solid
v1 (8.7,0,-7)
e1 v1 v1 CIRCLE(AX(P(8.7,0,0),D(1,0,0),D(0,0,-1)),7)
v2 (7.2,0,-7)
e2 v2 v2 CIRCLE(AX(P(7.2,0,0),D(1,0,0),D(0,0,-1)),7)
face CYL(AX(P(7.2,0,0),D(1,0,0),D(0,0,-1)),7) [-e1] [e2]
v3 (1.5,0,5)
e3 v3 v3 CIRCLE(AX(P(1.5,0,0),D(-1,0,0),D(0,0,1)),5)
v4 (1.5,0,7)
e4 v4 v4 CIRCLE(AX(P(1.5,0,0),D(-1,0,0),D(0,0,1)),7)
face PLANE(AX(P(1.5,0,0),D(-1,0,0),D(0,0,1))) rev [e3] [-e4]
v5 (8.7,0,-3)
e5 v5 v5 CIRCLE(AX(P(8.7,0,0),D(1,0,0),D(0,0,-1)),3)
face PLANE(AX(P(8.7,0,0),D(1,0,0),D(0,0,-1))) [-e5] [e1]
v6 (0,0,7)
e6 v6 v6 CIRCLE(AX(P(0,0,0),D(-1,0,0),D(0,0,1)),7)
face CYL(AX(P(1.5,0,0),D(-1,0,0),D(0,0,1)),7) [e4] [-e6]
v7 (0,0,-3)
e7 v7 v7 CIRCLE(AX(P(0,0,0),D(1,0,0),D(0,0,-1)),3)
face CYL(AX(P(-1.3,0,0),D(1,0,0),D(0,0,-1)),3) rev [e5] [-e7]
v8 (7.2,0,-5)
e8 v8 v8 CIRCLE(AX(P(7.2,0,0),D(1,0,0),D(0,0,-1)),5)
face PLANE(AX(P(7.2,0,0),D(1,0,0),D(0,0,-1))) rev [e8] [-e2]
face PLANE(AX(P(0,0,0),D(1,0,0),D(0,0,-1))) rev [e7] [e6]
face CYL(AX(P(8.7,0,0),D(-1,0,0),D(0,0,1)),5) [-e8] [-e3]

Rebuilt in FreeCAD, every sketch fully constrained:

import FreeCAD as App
import Part
import Sketcher
Q = App.Units.Quantity

doc = App.newDocument("Part")
body = doc.addObject("PartDesign::Body", "Body")

# Sketch on YZ plane
sketch1 = body.newObject("Sketcher::SketchObject", "Sketch")
sketch1.AttachmentSupport = (doc.getObject("YZ_Plane"), [""])
sketch1.MapMode = "FlatFace"
sketch1.addGeometry(Part.Circle(App.Vector(0, 0, 0), App.Vector(0, 0, 1), 5), False)
sketch1.addConstraint(Sketcher.Constraint("Coincident", 0, 3, -1, 1))
sketch1.addConstraint(Sketcher.Constraint("Diameter", 0, Q("10 mm")))
pad1 = body.newObject("PartDesign::Pad", "Pad")
pad1.Profile = sketch1
pad1.Length = 8.7

# Sketch on YZ plane
sketch2 = body.newObject("Sketcher::SketchObject", "Sketch001")
sketch2.AttachmentSupport = (doc.getObject("YZ_Plane"), [""])
sketch2.MapMode = "FlatFace"
sketch2.AttachmentOffset = App.Placement(App.Vector(0, 0, 8.7), App.Rotation())
sketch2.addGeometry(Part.Circle(App.Vector(0, 0, 0), App.Vector(0, 0, 1), 7), False)
sketch2.addConstraint(Sketcher.Constraint("Coincident", 0, 3, -1, 1))
sketch2.addConstraint(Sketcher.Constraint("Diameter", 0, Q("14 mm")))
pad2 = body.newObject("PartDesign::Pad", "Pad001")
pad2.Profile = sketch2
pad2.Length = 1.5
pad2.Reversed = True

# Sketch on YZ plane
sketch3 = body.newObject("Sketcher::SketchObject", "Sketch002")
sketch3.AttachmentSupport = (doc.getObject("YZ_Plane"), [""])
sketch3.MapMode = "FlatFace"
sketch3.AttachmentOffset = App.Placement(App.Vector(0, 0, 1.5), App.Rotation())
sketch3.addGeometry(Part.Circle(App.Vector(0, 0, 0), App.Vector(0, 0, 1), 7), False)
sketch3.addConstraint(Sketcher.Constraint("Coincident", 0, 3, -1, 1))
sketch3.addConstraint(Sketcher.Constraint("Diameter", 0, Q("14 mm")))
pad3 = body.newObject("PartDesign::Pad", "Pad002")
pad3.Profile = sketch3
pad3.Length = 1.5
pad3.Reversed = True

# Sketch on YZ plane
sketch4 = body.newObject("Sketcher::SketchObject", "Sketch003")
sketch4.AttachmentSupport = (doc.getObject("YZ_Plane"), [""])
sketch4.MapMode = "FlatFace"
sketch4.AttachmentOffset = App.Placement(App.Vector(0, 0, 8.7), App.Rotation())
sketch4.addGeometry(Part.Circle(App.Vector(0, 0, 0), App.Vector(0, 0, 1), 3), False)
sketch4.addConstraint(Sketcher.Constraint("Coincident", 0, 3, -1, 1))
sketch4.addConstraint(Sketcher.Constraint("Diameter", 0, Q("6 mm")))
pocket1 = body.newObject("PartDesign::Pocket", "Pocket")
pocket1.Profile = sketch4
pocket1.Length = 10

doc.recompute()
